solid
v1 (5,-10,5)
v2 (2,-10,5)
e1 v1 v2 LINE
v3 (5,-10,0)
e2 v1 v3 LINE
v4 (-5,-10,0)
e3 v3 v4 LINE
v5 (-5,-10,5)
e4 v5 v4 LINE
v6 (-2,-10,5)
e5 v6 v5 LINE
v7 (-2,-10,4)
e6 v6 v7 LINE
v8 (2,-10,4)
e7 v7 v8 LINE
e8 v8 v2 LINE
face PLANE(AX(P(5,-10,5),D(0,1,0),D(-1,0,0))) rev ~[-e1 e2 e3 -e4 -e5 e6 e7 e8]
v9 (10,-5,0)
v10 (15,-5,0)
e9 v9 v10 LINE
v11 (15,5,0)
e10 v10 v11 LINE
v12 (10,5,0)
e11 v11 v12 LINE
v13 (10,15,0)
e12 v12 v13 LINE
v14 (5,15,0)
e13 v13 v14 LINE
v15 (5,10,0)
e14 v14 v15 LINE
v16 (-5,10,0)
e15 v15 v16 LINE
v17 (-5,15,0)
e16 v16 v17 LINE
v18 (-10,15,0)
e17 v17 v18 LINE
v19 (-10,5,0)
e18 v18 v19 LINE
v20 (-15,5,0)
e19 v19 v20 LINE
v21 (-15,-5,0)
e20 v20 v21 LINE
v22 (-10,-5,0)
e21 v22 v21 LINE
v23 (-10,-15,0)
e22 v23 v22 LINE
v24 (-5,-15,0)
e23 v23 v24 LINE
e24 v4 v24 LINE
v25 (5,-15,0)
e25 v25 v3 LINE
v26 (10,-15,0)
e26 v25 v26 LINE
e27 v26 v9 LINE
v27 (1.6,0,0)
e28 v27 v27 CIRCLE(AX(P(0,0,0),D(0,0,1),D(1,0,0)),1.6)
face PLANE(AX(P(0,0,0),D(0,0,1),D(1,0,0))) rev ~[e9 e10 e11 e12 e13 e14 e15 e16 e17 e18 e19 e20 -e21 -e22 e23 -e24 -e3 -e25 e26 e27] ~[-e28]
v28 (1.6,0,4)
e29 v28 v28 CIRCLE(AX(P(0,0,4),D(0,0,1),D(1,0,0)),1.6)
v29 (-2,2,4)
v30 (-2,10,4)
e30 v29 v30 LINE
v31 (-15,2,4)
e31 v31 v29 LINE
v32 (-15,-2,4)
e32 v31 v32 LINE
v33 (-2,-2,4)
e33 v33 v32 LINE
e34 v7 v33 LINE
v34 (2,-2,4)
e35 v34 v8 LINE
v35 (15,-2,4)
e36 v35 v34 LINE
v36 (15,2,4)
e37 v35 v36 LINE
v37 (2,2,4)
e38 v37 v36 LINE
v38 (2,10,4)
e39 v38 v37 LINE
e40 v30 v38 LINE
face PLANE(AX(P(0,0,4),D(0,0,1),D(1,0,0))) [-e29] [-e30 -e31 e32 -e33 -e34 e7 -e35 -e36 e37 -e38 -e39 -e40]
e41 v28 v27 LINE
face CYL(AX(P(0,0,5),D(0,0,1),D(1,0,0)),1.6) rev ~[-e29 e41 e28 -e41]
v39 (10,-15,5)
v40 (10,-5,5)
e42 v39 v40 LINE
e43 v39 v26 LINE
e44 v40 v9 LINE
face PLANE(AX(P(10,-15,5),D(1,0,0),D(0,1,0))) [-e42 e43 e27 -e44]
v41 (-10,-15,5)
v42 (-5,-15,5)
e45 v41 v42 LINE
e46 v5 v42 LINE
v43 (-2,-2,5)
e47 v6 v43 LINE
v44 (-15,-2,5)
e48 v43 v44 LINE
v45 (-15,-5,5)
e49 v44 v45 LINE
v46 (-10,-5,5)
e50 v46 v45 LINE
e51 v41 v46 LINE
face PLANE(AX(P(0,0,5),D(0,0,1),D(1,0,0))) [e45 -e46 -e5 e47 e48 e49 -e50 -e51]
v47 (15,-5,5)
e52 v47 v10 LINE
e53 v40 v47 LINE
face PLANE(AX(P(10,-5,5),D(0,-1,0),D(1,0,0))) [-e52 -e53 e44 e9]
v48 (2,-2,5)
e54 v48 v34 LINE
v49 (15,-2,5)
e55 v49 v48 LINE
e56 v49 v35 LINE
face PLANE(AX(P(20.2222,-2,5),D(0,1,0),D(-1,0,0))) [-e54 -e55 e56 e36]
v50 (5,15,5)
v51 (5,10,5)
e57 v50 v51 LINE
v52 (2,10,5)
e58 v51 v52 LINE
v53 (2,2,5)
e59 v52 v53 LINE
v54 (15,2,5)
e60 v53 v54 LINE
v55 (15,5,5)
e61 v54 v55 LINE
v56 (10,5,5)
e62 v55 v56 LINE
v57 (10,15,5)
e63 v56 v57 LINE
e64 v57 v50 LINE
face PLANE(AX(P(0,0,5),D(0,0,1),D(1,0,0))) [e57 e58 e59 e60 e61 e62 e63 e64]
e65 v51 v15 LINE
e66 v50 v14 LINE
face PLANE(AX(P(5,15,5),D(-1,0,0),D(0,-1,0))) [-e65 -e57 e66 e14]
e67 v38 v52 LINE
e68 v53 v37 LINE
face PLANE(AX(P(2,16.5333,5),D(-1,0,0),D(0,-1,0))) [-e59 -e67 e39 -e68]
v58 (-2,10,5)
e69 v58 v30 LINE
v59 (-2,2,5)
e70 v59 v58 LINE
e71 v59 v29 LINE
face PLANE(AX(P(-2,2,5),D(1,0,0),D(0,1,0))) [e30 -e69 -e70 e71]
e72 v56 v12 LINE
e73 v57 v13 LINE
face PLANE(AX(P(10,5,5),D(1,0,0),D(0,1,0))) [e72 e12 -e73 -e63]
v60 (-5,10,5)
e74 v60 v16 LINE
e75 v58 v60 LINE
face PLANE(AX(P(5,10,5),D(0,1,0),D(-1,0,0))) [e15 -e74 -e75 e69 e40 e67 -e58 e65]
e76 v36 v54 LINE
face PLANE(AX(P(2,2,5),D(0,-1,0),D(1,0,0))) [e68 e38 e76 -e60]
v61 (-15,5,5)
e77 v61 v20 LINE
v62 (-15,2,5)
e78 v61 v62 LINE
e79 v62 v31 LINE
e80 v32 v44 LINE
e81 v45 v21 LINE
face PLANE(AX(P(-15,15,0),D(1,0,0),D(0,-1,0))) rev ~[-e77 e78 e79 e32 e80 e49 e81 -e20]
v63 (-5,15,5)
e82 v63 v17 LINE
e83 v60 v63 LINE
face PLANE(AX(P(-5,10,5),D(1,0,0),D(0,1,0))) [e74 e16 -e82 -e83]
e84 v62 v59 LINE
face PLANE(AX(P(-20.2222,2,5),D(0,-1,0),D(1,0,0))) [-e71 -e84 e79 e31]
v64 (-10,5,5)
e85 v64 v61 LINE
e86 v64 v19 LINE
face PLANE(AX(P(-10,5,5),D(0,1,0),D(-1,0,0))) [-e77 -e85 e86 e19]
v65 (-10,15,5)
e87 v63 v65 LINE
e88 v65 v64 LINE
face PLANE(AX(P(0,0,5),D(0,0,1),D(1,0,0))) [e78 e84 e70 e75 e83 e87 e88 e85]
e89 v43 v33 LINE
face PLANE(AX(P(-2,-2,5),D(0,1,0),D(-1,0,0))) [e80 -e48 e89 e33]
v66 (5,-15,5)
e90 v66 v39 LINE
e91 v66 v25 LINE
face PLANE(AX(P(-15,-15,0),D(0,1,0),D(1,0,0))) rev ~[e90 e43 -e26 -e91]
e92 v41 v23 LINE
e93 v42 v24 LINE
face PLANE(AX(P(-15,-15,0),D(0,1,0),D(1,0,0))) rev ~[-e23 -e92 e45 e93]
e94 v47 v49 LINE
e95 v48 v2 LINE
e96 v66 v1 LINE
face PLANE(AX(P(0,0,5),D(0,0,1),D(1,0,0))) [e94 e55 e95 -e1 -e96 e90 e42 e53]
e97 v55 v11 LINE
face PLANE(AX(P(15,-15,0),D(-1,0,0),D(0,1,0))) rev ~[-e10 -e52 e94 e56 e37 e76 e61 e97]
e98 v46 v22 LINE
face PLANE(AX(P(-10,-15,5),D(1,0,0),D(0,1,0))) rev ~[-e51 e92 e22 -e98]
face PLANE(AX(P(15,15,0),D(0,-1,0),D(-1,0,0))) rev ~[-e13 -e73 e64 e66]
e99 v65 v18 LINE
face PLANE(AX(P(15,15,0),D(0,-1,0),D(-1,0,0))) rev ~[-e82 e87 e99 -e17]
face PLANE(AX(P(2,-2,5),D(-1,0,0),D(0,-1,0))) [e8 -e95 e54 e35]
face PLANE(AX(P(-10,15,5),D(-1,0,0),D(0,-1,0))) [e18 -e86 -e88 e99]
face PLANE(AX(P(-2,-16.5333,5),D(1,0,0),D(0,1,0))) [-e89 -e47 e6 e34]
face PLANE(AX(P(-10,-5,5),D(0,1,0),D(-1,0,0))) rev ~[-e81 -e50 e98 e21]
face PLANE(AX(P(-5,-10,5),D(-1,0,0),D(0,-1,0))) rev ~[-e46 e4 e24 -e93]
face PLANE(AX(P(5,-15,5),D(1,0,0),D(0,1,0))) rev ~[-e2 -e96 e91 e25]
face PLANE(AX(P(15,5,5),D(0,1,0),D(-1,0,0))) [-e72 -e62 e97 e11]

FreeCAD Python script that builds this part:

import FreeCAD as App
import Part
import Sketcher

V = App.Vector


def add_polygon(sketch, points):
    """Adds a closed chain of lines whose ends are joined by coincident constraints."""
    first, n = sketch.GeometryCount, len(points)
    for a, b in zip(points, points[1:] + points[:1]):
        sketch.addGeometry(Part.LineSegment(App.Vector(*a, 0), App.Vector(*b, 0)), False)
    for i in range(n):
        sketch.addConstraint(Sketcher.Constraint("Coincident", first + i, 2, first + (i + 1) % n, 1))

doc = App.newDocument("Part")
body = doc.addObject("PartDesign::Body", "Body")

# Sketch on XY plane
sketch1 = body.newObject("Sketcher::SketchObject", "Sketch")
sketch1.AttachmentSupport = (doc.getObject("XY_Plane"), [""])
sketch1.MapMode = "FlatFace"
add_polygon(sketch1, [(-15, 15), (-15, -15), (15, -15), (15, 15)])  # lines 0-3
sketch1.addConstraint([
    Sketcher.Constraint("Vertical", 0),
    Sketcher.Constraint("Horizontal", 1),
    Sketcher.Constraint("Vertical", 2),
    Sketcher.Constraint("Horizontal", 3),
    Sketcher.Constraint("Symmetric", 0, 2, 2, 2, -1, 1),
    Sketcher.Constraint("Equal", 3, 0),
    Sketcher.Constraint("DistanceX", 1, 1, 1, 2, 30.0),
])
pad1 = body.newObject("PartDesign::Pad", "Pad")
pad1.Profile = sketch1
pad1.Length = 5

# Sketch on XY plane
sketch2 = body.newObject("Sketcher::SketchObject", "Sketch001")
sketch2.AttachmentSupport = (doc.getObject("XY_Plane"), [""])
sketch2.MapMode = "FlatFace"
sketch2.AttachmentOffset = App.Placement(V(0, 0, 5), App.Rotation())
add_polygon(sketch2, [(15, 15), (10, 15), (10, 5), (15, 5)])  # lines 0-3
add_polygon(sketch2, [(5, 15), (-5, 15), (-5, 10), (5, 10)])  # lines 4-7
add_polygon(sketch2, [(-10, 15), (-15, 15), (-15, 5), (-10, 5)])  # lines 8-11
add_polygon(sketch2, [(-15, -5), (-15, -15), (-10, -15), (-10, -5)])  # lines 12-15
add_polygon(sketch2, [(10, -5), (10, -15), (15, -15), (15, -5)])  # lines 16-19
add_polygon(sketch2, [(-5, -10), (-5, -15), (5, -15), (5, -10)])  # lines 20-23
sketch2.addConstraint([
    Sketcher.Constraint("Horizontal", 0),
    Sketcher.Constraint("Vertical", 1),
    Sketcher.Constraint("Horizontal", 2),
    Sketcher.Constraint("Vertical", 3),
    Sketcher.Constraint("Horizontal", 4),
    Sketcher.Constraint("Vertical", 5),
    Sketcher.Constraint("Horizontal", 6),
    Sketcher.Constraint("Vertical", 7),
    Sketcher.Constraint("Horizontal", 8),
    Sketcher.Constraint("Vertical", 9),
    Sketcher.Constraint("Horizontal", 10),
    Sketcher.Constraint("Vertical", 11),
    Sketcher.Constraint("Vertical", 12),
    Sketcher.Constraint("Horizontal", 13),
    Sketcher.Constraint("Vertical", 14),
    Sketcher.Constraint("Horizontal", 15),
    Sketcher.Constraint("Vertical", 16),
    Sketcher.Constraint("Horizontal", 17),
    Sketcher.Constraint("Vertical", 18),
    Sketcher.Constraint("Horizontal", 19),
    Sketcher.Constraint("Vertical", 20),
    Sketcher.Constraint("Horizontal", 21),
    Sketcher.Constraint("Vertical", 22),
    Sketcher.Constraint("Horizontal", 23),
    Sketcher.Constraint("Symmetric", 3, 2, 12, 2, -1, 1),
    Sketcher.Constraint("Symmetric", 1, 2, 14, 2, -1, 1),
    Sketcher.Constraint("Symmetric", 11, 2, 16, 2, -1, 1),
    Sketcher.Constraint("Symmetric", 9, 2, 18, 2, -1, 1),
    Sketcher.Constraint("Symmetric", 7, 2, 20, 2, -1, 1),
    Sketcher.Constraint("Symmetric", 5, 2, 22, 2, -1, 1),
    Sketcher.Constraint("Symmetric", 3, 2, 8, 2, -2),
    Sketcher.Constraint("Symmetric", 1, 2, 10, 2, -2),
    Sketcher.Constraint("Horizontal", 3, 2, 4, 2),
    Sketcher.Constraint("Vertical", 5, 2, 20, 2),
    Sketcher.Constraint("Equal", 23, 1),
    Sketcher.Constraint("Equal", 19, 5),
    Sketcher.Constraint("DistanceX", 0, 2, 0, 1, 5.0),
    Sketcher.Constraint("DistanceX", 4, 2, 4, 1, 10.0),
    Sketcher.Constraint("DistanceX", -1, 1, 0, 2, 10.0),
    Sketcher.Constraint("DistanceY", -1, 1, 1, 2, 5.0),
])
pocket1 = body.newObject("PartDesign::Pocket", "Pocket")
pocket1.Profile = sketch2
pocket1.Length = 5

# Sketch on XY plane
sketch3 = body.newObject("Sketcher::SketchObject", "Sketch002")
sketch3.AttachmentSupport = (doc.getObject("XY_Plane"), [""])
sketch3.MapMode = "FlatFace"
sketch3.AttachmentOffset = App.Placement(V(0, 0, 5), App.Rotation())
add_polygon(sketch3, [(-2, 2), (-20.2, 2), (-20.2, -2), (-2, -2), (-2, -16.5), (2, -16.5), (2, -2), (20.2, -2), (20.2, 2), (2, 2), (2, 16.5), (-2, 16.5)])  # lines 0-11
sketch3.addConstraint([
    Sketcher.Constraint("Horizontal", 0),
    Sketcher.Constraint("Vertical", 1),
    Sketcher.Constraint("Horizontal", 2),
    Sketcher.Constraint("Vertical", 3),
    Sketcher.Constraint("Horizontal", 4),
    Sketcher.Constraint("Vertical", 5),
    Sketcher.Constraint("Horizontal", 6),
    Sketcher.Constraint("Vertical", 7),
    Sketcher.Constraint("Horizontal", 8),
    Sketcher.Constraint("Vertical", 9),
    Sketcher.Constraint("Horizontal", 10),
    Sketcher.Constraint("Vertical", 11),
    Sketcher.Constraint("Symmetric", 0, 2, 6, 2, -1, 1),
    Sketcher.Constraint("Symmetric", 2, 2, 8, 2, -1, 1),
    Sketcher.Constraint("Symmetric", 4, 2, 10, 2, -1, 1),
    Sketcher.Constraint("Symmetric", 2, 2, 5, 2, -2),
    Sketcher.Constraint("Equal", 10, 1),
    Sketcher.Constraint("DistanceX", 4, 1, 4, 2, 4.0),
    Sketcher.Constraint("DistanceX", 0, 2, 0, 1, 18.2222),
    Sketcher.Constraint("DistanceY", 3, 2, 3, 1, 14.5333),
])
pocket2 = body.newObject("PartDesign::Pocket", "Pocket001")
pocket2.Profile = sketch3
pocket2.Length = 1

# Sketch on XY plane
sketch4 = body.newObject("Sketcher::SketchObject", "Sketch003")
sketch4.AttachmentSupport = (doc.getObject("XY_Plane"), [""])
sketch4.MapMode = "FlatFace"
sketch4.AttachmentOffset = App.Placement(V(0, 0, 5), App.Rotation())
sketch4.addGeometry(Part.Circle(V(0, 0, 0), V(0, 0, 1), 1.6), False)
sketch4.addConstraint([
    Sketcher.Constraint("Coincident", 0, 3, -1, 1),
    Sketcher.Constraint("Diameter", 0, 3.2),
])
pocket3 = body.newObject("PartDesign::Pocket", "Pocket002")
pocket3.Profile = sketch4
pocket3.Length = 5

doc.recompute()
